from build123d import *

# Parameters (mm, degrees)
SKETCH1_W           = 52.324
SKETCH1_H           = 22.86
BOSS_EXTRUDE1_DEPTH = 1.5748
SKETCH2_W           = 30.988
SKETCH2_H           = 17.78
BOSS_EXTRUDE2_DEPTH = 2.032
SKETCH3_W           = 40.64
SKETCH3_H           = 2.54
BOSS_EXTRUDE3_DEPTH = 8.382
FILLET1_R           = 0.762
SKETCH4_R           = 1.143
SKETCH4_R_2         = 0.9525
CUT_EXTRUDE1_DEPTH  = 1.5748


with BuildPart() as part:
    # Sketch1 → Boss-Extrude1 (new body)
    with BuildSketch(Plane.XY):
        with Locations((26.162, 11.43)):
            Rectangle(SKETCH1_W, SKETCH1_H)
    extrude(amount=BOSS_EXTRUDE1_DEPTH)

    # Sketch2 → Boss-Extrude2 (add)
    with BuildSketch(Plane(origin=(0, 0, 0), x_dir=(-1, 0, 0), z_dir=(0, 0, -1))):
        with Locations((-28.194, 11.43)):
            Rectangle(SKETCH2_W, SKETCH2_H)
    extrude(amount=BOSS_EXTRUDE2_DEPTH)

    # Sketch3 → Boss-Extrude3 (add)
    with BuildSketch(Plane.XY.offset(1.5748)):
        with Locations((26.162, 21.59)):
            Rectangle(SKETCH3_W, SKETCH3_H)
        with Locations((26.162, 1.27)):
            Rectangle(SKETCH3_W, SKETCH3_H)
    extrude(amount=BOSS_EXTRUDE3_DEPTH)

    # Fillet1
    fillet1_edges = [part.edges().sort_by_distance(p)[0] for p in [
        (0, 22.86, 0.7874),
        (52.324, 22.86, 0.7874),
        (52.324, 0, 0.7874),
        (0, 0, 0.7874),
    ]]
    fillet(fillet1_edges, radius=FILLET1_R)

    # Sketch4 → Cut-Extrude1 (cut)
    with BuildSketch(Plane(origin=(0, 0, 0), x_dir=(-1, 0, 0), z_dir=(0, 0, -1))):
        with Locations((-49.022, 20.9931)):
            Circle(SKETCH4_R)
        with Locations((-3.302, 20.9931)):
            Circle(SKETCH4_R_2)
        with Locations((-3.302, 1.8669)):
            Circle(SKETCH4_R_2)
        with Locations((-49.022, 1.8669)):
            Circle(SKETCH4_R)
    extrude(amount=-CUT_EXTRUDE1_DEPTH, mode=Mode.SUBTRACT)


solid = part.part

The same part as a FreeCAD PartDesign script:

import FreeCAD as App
import Part
import Sketcher

V = App.Vector
Q = App.Units.Quantity


def edges_at(feature, points):
    """Names of the edges that pass closest to the given points."""
    edges = feature.Shape.Edges
    near = lambda p: min(range(len(edges)), key=lambda i: edges[i].distToShape(Part.Vertex(*p))[0])
    return sorted({f"Edge{near(p) + 1}" for p in points})


def add_polygon(sketch, points):
    """Adds a closed chain of lines whose ends are joined by coincident constraints."""
    first, n = sketch.GeometryCount, len(points)
    for a, b in zip(points, points[1:] + points[:1]):
        sketch.addGeometry(Part.LineSegment(App.Vector(*a, 0), App.Vector(*b, 0)), False)
    for i in range(n):
        sketch.addConstraint(Sketcher.Constraint("Coincident", first + i, 2, first + (i + 1) % n, 1))

doc = App.newDocument("Part")
params = doc.addObject("Spreadsheet::Sheet", "Params")
for row, (alias, value) in enumerate([
    ("sketch1_height", "0.9 in"),
    ("sketch1_width", "2.06 in"),
    ("pad1_length", "0.062 in"),
    ("sketch2_height", "0.7 in"),
    ("sketch2_width", "1.22 in"),
    ("pad2_length", "0.08 in"),
    ("sketch3_width", "1.6 in"),
    ("sketch3_height", "0.1 in"),
    ("pad3_length", "0.33 in"),
    ("fillet_radius", "0.03 in"),
    ("sketch4_diameter", "0.09 in"),
    ("sketch4_diameter2", "0.075 in"),
    ("pocket1_length", "0.062 in"),
], start=1):
    params.set(f"A{row}", alias)
    params.set(f"B{row}", "=" + value)
    params.setAlias(f"B{row}", alias)

body = doc.addObject("PartDesign::Body", "Body")

# Sketch on XY plane
sketch1 = doc.addObject("Sketcher::SketchObject", "Sketch")
body.addObject(sketch1)
sketch1.AttachmentSupport = (doc.XY_Plane, [""])
sketch1.MapMode = "FlatFace"
add_polygon(sketch1, [(0, 23), (0, 0), (52, 0), (52, 23)])  # lines 0-3
sketch1.addConstraint([
    Sketcher.Constraint("Vertical", 0),
    Sketcher.Constraint("Horizontal", 1),
    Sketcher.Constraint("Vertical", 2),
    Sketcher.Constraint("Horizontal", 3),
    Sketcher.Constraint("Coincident", 0, 2, -1, 1),
    Sketcher.Constraint("DistanceY", 0, 2, 0, 1, Q("0.9 in")),
    Sketcher.Constraint("DistanceX", 1, 1, 1, 2, Q("2.06 in")),
])
sketch1.setExpression("Constraints[9]", "Params.sketch1_height")
sketch1.setExpression("Constraints[10]", "Params.sketch1_width")
pad1 = doc.addObject("PartDesign::Pad", "Pad")
body.addObject(pad1)
pad1.Profile = sketch1
pad1.setExpression("Length", "Params.pad1_length")

# Sketch on XY plane
sketch2 = doc.addObject("Sketcher::SketchObject", "Sketch001")
body.addObject(sketch2)
sketch2.AttachmentSupport = (doc.XY_Plane, [""])
sketch2.MapMode = "FlatFace"
add_polygon(sketch2, [(44, 20), (44, 3), (13, 3), (13, 20)])  # lines 0-3
sketch2.addConstraint([
    Sketcher.Constraint("Vertical", 0),
    Sketcher.Constraint("Horizontal", 1),
    Sketcher.Constraint("Vertical", 2),
    Sketcher.Constraint("Horizontal", 3),
    Sketcher.Constraint("DistanceY", 0, 2, 0, 1, Q("0.7 in")),
    Sketcher.Constraint("DistanceX", 1, 2, 1, 1, Q("1.22 in")),
    Sketcher.Constraint("DistanceY", -1, 1, 0, 2, Q("0.1 in")),
    Sketcher.Constraint("DistanceX", -1, 1, 1, 2, Q("0.5 in")),
])
sketch2.setExpression("Constraints[8]", "Params.sketch2_height")
sketch2.setExpression("Constraints[9]", "Params.sketch2_width")
pad2 = doc.addObject("PartDesign::Pad", "Pad001")
body.addObject(pad2)
pad2.Profile = sketch2
pad2.setExpression("Length", "Params.pad2_length")
pad2.Reversed = True

# Sketch on XY plane
sketch3 = doc.addObject("Sketcher::SketchObject", "Sketch002")
body.addObject(sketch3)
sketch3.AttachmentSupport = (doc.XY_Plane, [""])
sketch3.MapMode = "FlatFace"
sketch3.AttachmentOffset = App.Placement(V(0, 0, 0.062 * 25.4), App.Rotation())
add_polygon(sketch3, [(5.8, 22.9), (5.8, 20.3), (46.5, 20.3), (46.5, 22.9)])  # lines 0-3
add_polygon(sketch3, [(5.8, 2.5), (5.8, 0), (46.5, 0), (46.5, 2.5)])  # lines 4-7
sketch3.addConstraint([
    Sketcher.Constraint("Vertical", 0),
    Sketcher.Constraint("Horizontal", 1),
    Sketcher.Constraint("Vertical", 2),
    Sketcher.Constraint("Horizontal", 3),
    Sketcher.Constraint("Vertical", 4),
    Sketcher.Constraint("Horizontal", 5),
    Sketcher.Constraint("Vertical", 6),
    Sketcher.Constraint("Horizontal", 7),
    Sketcher.Constraint("PointOnObject", 4, 2, -1),
    Sketcher.Constraint("Vertical", 3, 2, 4, 2),
    Sketcher.Constraint("Vertical", 2, 2, 5, 2),
    Sketcher.Constraint("Equal", 2, 4),
    Sketcher.Constraint("DistanceX", 1, 1, 1, 2, Q("1.6 in")),
    Sketcher.Constraint("DistanceY", 0, 2, 0, 1, Q("0.1 in")),
    Sketcher.Constraint("DistanceY", -1, 1, 0, 2, Q("0.8 in")),
    Sketcher.Constraint("DistanceX", -1, 1, 0, 2, Q("0.23 in")),
])
sketch3.setExpression("Constraints[20]", "Params.sketch3_width")
sketch3.setExpression("Constraints[21]", "Params.sketch3_height")
pad3 = doc.addObject("PartDesign::Pad", "Pad002")
body.addObject(pad3)
pad3.Profile = sketch3
pad3.setExpression("Length", "Params.pad3_length")
doc.recompute()

fillet = doc.addObject("PartDesign::Fillet", "Fillet")
body.addObject(fillet)
fillet.Base = (pad3, edges_at(pad3, [
    (0, 22.86, 0.787),
    (52.324, 22.86, 0.787),
    (52.324, 0, 0.787),
    (0, 0, 0.787),
]))
fillet.setExpression("Radius", "Params.fillet_radius")

# Sketch on XY plane
sketch4 = doc.addObject("Sketcher::SketchObject", "Sketch003")
body.addObject(sketch4)
sketch4.AttachmentSupport = (doc.XY_Plane, [""])
sketch4.MapMode = "FlatFace"
sketch4.addGeometry([
    Part.Circle(V(49, 21, 0), V(0, 0, 1), 1.1),
    Part.Circle(V(3.3, 21, 0), V(0, 0, 1), 1),
    Part.Circle(V(3.3, 1.9, 0), V(0, 0, 1), 1),
    Part.Circle(V(49, 1.9, 0), V(0, 0, 1), 1.1),
], False)
sketch4.addConstraint([
    Sketcher.Constraint("Equal", 1, 2),
    Sketcher.Constraint("Equal", 0, 3),
    Sketcher.Constraint("Horizontal", 0, 3, 1, 3),
    Sketcher.Constraint("Horizontal", 2, 3, 3, 3),
    Sketcher.Constraint("Vertical", 1, 3, 2, 3),
    Sketcher.Constraint("Vertical", 0, 3, 3, 3),
    Sketcher.Constraint("Diameter", 0, Q("0.09 in")),
    Sketcher.Constraint("Diameter", 1, Q("0.075 in")),
    Sketcher.Constraint("DistanceX", 1, 3, 0, 3, Q("1.8 in")),
    Sketcher.Constraint("DistanceX", -1, 1, 0, 3, Q("1.93 in")),
    Sketcher.Constraint("DistanceY", 2, 3, 1, 3, Q("0.753 in")),
    Sketcher.Constraint("DistanceY", -1, 1, 0, 3, Q("0.8265 in")),
])
sketch4.setExpression("Constraints[6]", "Params.sketch4_diameter")
sketch4.setExpression("Constraints[7]", "Params.sketch4_diameter2")
pocket1 = doc.addObject("PartDesign::Pocket", "Pocket")
body.addObject(pocket1)
pocket1.Profile = sketch4
pocket1.setExpression("Length", "Params.pocket1_length")
pocket1.Reversed = True

doc.recompute()
